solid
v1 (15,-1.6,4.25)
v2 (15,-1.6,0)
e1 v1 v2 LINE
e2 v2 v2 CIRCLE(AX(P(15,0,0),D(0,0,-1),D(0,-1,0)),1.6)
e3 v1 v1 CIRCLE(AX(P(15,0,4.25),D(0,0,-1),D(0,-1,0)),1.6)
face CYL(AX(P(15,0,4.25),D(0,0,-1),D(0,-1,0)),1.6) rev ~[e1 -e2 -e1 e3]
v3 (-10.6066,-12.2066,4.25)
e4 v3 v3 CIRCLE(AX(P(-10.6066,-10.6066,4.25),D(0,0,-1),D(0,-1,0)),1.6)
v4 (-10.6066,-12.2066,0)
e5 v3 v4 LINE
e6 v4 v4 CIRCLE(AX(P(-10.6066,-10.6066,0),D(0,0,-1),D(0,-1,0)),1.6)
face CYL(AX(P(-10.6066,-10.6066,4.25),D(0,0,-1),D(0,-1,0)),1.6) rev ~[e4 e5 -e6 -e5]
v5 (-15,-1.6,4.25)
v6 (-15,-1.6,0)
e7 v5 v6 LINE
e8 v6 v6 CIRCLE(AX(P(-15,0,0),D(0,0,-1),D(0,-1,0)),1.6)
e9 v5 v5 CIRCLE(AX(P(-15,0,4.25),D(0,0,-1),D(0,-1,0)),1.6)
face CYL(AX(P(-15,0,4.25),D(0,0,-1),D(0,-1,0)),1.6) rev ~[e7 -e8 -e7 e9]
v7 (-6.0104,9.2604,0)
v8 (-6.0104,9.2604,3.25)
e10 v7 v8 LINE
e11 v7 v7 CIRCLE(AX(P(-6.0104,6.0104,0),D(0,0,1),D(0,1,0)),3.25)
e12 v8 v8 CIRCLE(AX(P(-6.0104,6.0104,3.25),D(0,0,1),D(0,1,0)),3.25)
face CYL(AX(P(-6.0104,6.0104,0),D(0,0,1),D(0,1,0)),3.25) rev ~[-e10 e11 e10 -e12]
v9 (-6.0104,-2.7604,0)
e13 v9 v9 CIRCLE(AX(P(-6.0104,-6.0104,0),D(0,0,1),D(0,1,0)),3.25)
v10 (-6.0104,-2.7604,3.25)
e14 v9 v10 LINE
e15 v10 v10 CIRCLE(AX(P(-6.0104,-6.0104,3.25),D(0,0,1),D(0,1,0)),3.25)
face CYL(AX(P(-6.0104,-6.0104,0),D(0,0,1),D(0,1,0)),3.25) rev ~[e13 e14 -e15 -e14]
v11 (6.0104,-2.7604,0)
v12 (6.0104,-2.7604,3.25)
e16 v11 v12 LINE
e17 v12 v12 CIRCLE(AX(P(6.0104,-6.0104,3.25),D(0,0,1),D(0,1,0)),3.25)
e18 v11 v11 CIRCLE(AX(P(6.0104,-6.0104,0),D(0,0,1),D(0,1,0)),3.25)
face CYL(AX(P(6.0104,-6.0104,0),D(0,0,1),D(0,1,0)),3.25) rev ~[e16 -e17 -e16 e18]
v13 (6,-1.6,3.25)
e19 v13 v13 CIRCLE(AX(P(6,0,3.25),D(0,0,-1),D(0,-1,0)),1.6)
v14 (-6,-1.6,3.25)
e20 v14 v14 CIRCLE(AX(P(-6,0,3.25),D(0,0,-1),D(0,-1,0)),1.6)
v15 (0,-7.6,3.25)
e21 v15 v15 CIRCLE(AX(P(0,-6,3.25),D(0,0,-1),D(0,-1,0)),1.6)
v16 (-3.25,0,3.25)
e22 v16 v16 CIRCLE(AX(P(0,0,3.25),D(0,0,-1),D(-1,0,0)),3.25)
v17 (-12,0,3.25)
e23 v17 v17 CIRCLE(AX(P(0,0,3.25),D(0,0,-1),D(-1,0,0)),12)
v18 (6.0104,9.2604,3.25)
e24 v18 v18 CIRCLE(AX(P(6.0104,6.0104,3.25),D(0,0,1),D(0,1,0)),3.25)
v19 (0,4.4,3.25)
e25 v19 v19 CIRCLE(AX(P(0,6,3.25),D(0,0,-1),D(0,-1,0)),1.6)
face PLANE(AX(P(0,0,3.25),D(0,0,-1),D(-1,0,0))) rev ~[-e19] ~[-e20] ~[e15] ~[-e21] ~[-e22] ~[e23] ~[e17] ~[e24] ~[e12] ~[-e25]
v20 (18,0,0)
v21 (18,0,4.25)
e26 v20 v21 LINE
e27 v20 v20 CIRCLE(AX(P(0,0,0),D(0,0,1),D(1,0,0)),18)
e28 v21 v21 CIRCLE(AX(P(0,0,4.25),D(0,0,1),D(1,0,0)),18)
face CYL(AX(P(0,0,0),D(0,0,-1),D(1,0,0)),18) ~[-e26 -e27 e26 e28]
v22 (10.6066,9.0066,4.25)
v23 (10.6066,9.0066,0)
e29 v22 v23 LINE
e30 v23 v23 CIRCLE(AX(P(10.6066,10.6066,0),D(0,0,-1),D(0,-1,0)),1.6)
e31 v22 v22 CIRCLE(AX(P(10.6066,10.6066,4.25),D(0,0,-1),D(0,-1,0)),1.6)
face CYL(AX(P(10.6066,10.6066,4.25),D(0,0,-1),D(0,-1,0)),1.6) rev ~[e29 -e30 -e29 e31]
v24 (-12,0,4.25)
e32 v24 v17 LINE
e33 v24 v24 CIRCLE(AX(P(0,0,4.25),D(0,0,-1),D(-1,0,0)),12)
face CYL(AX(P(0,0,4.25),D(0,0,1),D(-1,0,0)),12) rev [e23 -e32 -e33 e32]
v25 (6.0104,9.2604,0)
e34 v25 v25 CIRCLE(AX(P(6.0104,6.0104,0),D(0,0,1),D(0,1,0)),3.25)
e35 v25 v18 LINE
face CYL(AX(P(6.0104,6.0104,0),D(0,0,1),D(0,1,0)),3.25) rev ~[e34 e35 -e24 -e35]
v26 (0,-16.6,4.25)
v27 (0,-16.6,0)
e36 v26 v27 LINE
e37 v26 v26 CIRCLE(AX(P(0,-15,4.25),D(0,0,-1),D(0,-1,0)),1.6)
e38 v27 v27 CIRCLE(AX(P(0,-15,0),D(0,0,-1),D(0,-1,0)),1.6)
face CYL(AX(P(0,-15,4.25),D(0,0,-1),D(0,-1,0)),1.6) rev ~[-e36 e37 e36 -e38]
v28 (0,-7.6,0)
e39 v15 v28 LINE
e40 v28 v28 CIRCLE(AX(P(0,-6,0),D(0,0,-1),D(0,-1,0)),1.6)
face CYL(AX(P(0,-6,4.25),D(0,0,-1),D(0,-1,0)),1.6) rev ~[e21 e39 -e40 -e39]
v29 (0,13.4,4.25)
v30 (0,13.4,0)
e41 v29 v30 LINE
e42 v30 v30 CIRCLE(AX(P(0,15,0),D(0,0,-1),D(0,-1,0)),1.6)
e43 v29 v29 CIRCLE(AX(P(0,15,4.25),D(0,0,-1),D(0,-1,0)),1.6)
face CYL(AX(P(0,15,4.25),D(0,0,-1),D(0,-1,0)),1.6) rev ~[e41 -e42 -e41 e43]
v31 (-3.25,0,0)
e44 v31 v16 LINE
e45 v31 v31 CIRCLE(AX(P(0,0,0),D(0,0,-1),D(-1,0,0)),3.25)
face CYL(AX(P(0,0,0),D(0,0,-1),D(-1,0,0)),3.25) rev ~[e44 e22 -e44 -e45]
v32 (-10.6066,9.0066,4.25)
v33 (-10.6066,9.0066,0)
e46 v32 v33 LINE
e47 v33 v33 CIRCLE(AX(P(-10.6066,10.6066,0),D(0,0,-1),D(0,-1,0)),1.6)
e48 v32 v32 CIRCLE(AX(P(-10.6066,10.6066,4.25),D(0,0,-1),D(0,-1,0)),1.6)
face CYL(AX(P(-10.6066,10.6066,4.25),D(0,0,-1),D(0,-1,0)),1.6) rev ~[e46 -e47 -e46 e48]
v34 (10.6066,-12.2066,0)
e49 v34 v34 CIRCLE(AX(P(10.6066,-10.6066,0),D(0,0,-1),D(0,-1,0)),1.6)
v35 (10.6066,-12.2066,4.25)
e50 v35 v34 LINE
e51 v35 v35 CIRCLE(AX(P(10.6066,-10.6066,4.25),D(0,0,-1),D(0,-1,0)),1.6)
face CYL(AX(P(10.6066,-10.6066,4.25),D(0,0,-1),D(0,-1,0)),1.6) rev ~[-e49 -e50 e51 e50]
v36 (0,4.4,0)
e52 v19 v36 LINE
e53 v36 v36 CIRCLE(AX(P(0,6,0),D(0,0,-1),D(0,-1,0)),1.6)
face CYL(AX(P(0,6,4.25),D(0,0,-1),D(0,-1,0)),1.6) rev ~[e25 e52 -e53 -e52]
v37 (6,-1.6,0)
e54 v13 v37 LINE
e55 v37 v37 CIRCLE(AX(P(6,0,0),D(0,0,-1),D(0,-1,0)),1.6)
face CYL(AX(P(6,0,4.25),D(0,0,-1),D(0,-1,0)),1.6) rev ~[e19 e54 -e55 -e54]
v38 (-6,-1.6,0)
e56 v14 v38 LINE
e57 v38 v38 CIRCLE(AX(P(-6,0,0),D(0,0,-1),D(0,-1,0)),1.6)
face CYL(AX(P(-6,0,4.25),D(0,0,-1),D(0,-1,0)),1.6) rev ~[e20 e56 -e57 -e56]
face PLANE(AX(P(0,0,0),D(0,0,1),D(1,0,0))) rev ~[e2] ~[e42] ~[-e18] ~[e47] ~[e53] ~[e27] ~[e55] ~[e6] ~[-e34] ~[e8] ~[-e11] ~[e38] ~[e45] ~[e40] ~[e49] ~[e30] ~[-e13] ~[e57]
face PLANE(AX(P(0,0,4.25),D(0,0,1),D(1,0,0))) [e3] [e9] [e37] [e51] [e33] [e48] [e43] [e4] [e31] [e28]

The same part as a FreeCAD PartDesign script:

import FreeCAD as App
import Part
import Sketcher

doc = App.newDocument("Part")
body = doc.addObject("PartDesign::Body", "Body")

# Sketch on XY plane
sketch1 = doc.addObject("Sketcher::SketchObject", "Sketch")
body.addObject(sketch1)
sketch1.AttachmentSupport = (doc.XY_Plane, [""])
sketch1.MapMode = "FlatFace"
sketch1.addGeometry(Part.Circle(App.Vector(0, 0, 0), App.Vector(0, 0, 1), 18), False)
sketch1.addConstraint(Sketcher.Constraint("Coincident", 0, 3, -1, 1))
sketch1.addConstraint(Sketcher.Constraint("Diameter", 0, 36.0))
pad1 = doc.addObject("PartDesign::Pad", "Pad")
body.addObject(pad1)
pad1.Profile = sketch1
pad1.Length = 4.25

# Sketch on XY plane
sketch2 = doc.addObject("Sketcher::SketchObject", "Sketch001")
body.addObject(sketch2)
sketch2.AttachmentSupport = (doc.XY_Plane, [""])
sketch2.MapMode = "FlatFace"
sketch2.AttachmentOffset = App.Placement(App.Vector(0, 0, 4.25), App.Rotation())
sketch2.addGeometry(Part.Circle(App.Vector(0, 6, 0), App.Vector(0, 0, 1), 1.6), False)
sketch2.addGeometry(Part.Circle(App.Vector(-6, 0, 0), App.Vector(0, 0, 1), 1.6), False)
sketch2.addGeometry(Part.Circle(App.Vector(0, -6, 0), App.Vector(0, 0, 1), 1.6), False)
sketch2.addGeometry(Part.Circle(App.Vector(6, 0, 0), App.Vector(0, 0, 1), 1.6), False)
sketch2.addConstraint(Sketcher.Constraint("Equal", 0, 1))
sketch2.addConstraint(Sketcher.Constraint("Equal", 1, 2))
sketch2.addConstraint(Sketcher.Constraint("Equal", 2, 3))
sketch2.addConstraint(Sketcher.Constraint("Symmetric", 0, 3, 2, 3, -1, 1))
sketch2.addConstraint(Sketcher.Constraint("Symmetric", 1, 3, 3, 3, -1, 1))
sketch2.addConstraint(Sketcher.Constraint("PointOnObject", 0, 3, -2))
sketch2.addConstraint(Sketcher.Constraint("PointOnObject", 1, 3, -1))
sketch2.addConstraint(Sketcher.Constraint("Diameter", 0, 3.2))
sketch2.addConstraint(Sketcher.Constraint("DistanceY", -1, 1, 0, 3, 6.0))
sketch2.addConstraint(Sketcher.Constraint("DistanceX", 1, 3, -1, 1, 6.0))
doc.recompute()
hole = doc.addObject("PartDesign::Hole", "Hole")
body.addObject(hole)
hole.Profile = sketch2
hole.ThreadType = "None"
hole.Diameter = 3.2
hole.DepthType = "ThroughAll"

# Sketch on XY plane
sketch3 = doc.addObject("Sketcher::SketchObject", "Sketch002")
body.addObject(sketch3)
sketch3.AttachmentSupport = (doc.XY_Plane, [""])
sketch3.MapMode = "FlatFace"
sketch3.addGeometry(Part.Circle(App.Vector(6, 6, 0), App.Vector(0, 0, 1), 1.6), False)
sketch3.addGeometry(Part.Circle(App.Vector(6, -6, 0), App.Vector(0, 0, 1), 1.6), False)
sketch3.addGeometry(Part.Circle(App.Vector(-6, -6, 0), App.Vector(0, 0, 1), 1.6), False)
sketch3.addGeometry(Part.Circle(App.Vector(-6, 6, 0), App.Vector(0, 0, 1), 1.6), False)
sketch3.addConstraint(Sketcher.Constraint("Equal", 0, 1))
sketch3.addConstraint(Sketcher.Constraint("Equal", 1, 2))
sketch3.addConstraint(Sketcher.Constraint("Equal", 2, 3))
sketch3.addConstraint(Sketcher.Constraint("Symmetric", 0, 3, 2, 3, -1, 1))
sketch3.addConstraint(Sketcher.Constraint("Symmetric", 1, 3, 3, 3, -1, 1))
sketch3.addConstraint(Sketcher.Constraint("Symmetric", 1, 3, 2, 3, -2))
sketch3.addConstraint(Sketcher.Constraint("Diameter", 0, 3.2))
sketch3.addConstraint(Sketcher.Constraint("DistanceX", -1, 1, 0, 3, 6.0104))
sketch3.addConstraint(Sketcher.Constraint("DistanceY", -1, 1, 0, 3, 6.0104))
doc.recompute()
hole2 = doc.addObject("PartDesign::Hole", "Hole001")
body.addObject(hole2)
hole2.Profile = sketch3
hole2.ThreadType = "None"
hole2.Diameter = 3.2
hole2.DepthType = "ThroughAll"
hole2.HoleCutType = "Counterbore"
hole2.HoleCutDiameter = 6.5
hole2.HoleCutDepth = 10
hole2.Reversed = True

# Sketch on XY plane
sketch4 = doc.addObject("Sketcher::SketchObject", "Sketch003")
body.addObject(sketch4)
sketch4.AttachmentSupport = (doc.XY_Plane, [""])
sketch4.MapMode = "FlatFace"
sketch4.addGeometry(Part.Circle(App.Vector(0, 0, 0), App.Vector(0, 0, 1), 3.2), False)
sketch4.addConstraint(Sketcher.Constraint("Coincident", 0, 3, -1, 1))
sketch4.addConstraint(Sketcher.Constraint("Diameter", 0, 6.5))
pocket1 = doc.addObject("PartDesign::Pocket", "Pocket")
body.addObject(pocket1)
pocket1.Profile = sketch4
pocket1.Length = 8
pocket1.Reversed = True

# Sketch on XY plane
sketch5 = doc.addObject("Sketcher::SketchObject", "Sketch004")
body.addObject(sketch5)
sketch5.AttachmentSupport = (doc.XY_Plane, [""])
sketch5.MapMode = "FlatFace"
sketch5.AttachmentOffset = App.Placement(App.Vector(0, 0, 4.25), App.Rotation())
sketch5.addGeometry(Part.Circle(App.Vector(0, -15, 0), App.Vector(0, 0, 1), 1.6), False)
sketch5.addGeometry(Part.Circle(App.Vector(10.6, -10.6, 0), App.Vector(0, 0, 1), 1.6), False)
sketch5.addGeometry(Part.Circle(App.Vector(15, 0, 0), App.Vector(0, 0, 1), 1.6), False)
sketch5.addGeometry(Part.Circle(App.Vector(10.6, 10.6, 0), App.Vector(0, 0, 1), 1.6), False)
sketch5.addGeometry(Part.Circle(App.Vector(0, 15, 0), App.Vector(0, 0, 1), 1.6), False)
sketch5.addGeometry(Part.Circle(App.Vector(-10.6, 10.6, 0), App.Vector(0, 0, 1), 1.6), False)
sketch5.addGeometry(Part.Circle(App.Vector(-15, 0, 0), App.Vector(0, 0, 1), 1.6), False)
sketch5.addGeometry(Part.Circle(App.Vector(-10.6, -10.6, 0), App.Vector(0, 0, 1), 1.6), False)
sketch5.addConstraint(Sketcher.Constraint("Equal", 0, 1))
sketch5.addConstraint(Sketcher.Constraint("Equal", 1, 2))
sketch5.addConstraint(Sketcher.Constraint("Equal", 2, 3))
sketch5.addConstraint(Sketcher.Constraint("Equal", 3, 4))
sketch5.addConstraint(Sketcher.Constraint("Equal", 4, 5))
sketch5.addConstraint(Sketcher.Constraint("Equal", 5, 6))
sketch5.addConstraint(Sketcher.Constraint("Equal", 6, 7))
sketch5.addConstraint(Sketcher.Constraint("Symmetric", 0, 3, 4, 3, -1, 1))
sketch5.addConstraint(Sketcher.Constraint("Symmetric", 1, 3, 5, 3, -1, 1))
sketch5.addConstraint(Sketcher.Constraint("Symmetric", 2, 3, 6, 3, -1, 1))
sketch5.addConstraint(Sketcher.Constraint("Symmetric", 3, 3, 7, 3, -1, 1))
sketch5.addConstraint(Sketcher.Constraint("Symmetric", 3, 3, 5, 3, -2))
sketch5.addConstraint(Sketcher.Constraint("PointOnObject", 0, 3, -2))
sketch5.addConstraint(Sketcher.Constraint("PointOnObject", 2, 3, -1))
sketch5.addConstraint(Sketcher.Constraint("Diameter", 0, 3.2))
sketch5.addConstraint(Sketcher.Constraint("DistanceY", 0, 3, -1, 1, 15.0))
sketch5.addConstraint(Sketcher.Constraint("DistanceX", -1, 1, 2, 3, 15.0))
sketch5.addConstraint(Sketcher.Constraint("DistanceX", -1, 1, 1, 3, 10.6066))
sketch5.addConstraint(Sketcher.Constraint("DistanceY", 1, 3, -1, 1, 10.6066))
doc.recompute()
hole3 = doc.addObject("PartDesign::Hole", "Hole002")
body.addObject(hole3)
hole3.Profile = sketch5
hole3.ThreadType = "None"
hole3.Diameter = 3.2
hole3.DepthType = "ThroughAll"

# Sketch on XY plane
sketch6 = doc.addObject("Sketcher::SketchObject", "Sketch005")
body.addObject(sketch6)
sketch6.AttachmentSupport = (doc.XY_Plane, [""])
sketch6.MapMode = "FlatFace"
sketch6.AttachmentOffset = App.Placement(App.Vector(0, 0, 4.25), App.Rotation())
sketch6.addGeometry(Part.Circle(App.Vector(0, 0, 0), App.Vector(0, 0, 1), 12), False)
sketch6.addConstraint(Sketcher.Constraint("Coincident", 0, 3, -1, 1))
sketch6.addConstraint(Sketcher.Constraint("Diameter", 0, 24.0))
pocket2 = doc.addObject("PartDesign::Pocket", "Pocket001")
body.addObject(pocket2)
pocket2.Profile = sketch6
pocket2.Length = 1

doc.recompute()
